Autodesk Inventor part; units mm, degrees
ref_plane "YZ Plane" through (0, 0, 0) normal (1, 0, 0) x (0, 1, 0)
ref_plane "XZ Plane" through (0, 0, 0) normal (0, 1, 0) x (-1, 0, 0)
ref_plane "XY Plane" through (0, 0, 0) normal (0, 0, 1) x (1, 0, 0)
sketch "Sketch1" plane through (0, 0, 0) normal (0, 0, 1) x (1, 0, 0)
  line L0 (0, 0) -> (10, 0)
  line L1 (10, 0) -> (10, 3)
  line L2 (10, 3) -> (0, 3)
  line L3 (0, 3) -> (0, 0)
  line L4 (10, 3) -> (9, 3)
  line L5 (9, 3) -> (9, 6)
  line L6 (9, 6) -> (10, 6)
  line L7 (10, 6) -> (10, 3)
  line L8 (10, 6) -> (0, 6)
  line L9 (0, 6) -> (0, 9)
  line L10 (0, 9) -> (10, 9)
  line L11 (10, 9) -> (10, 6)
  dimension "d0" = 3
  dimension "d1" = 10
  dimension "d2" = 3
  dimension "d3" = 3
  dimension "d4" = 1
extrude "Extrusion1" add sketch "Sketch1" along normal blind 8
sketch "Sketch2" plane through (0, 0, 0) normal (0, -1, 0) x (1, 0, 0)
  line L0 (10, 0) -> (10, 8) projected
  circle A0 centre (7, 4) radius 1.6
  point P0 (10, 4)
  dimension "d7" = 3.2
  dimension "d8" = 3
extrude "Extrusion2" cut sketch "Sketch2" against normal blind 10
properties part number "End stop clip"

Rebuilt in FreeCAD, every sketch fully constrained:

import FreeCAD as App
import Part
import Sketcher

V = App.Vector


def add_polygon(sketch, points):
    """Adds a closed chain of lines whose ends are joined by coincident constraints."""
    first, n = sketch.GeometryCount, len(points)
    for a, b in zip(points, points[1:] + points[:1]):
        sketch.addGeometry(Part.LineSegment(App.Vector(*a, 0), App.Vector(*b, 0)), False)
    for i in range(n):
        sketch.addConstraint(Sketcher.Constraint("Coincident", first + i, 2, first + (i + 1) % n, 1))

doc = App.newDocument("Part")
body = doc.addObject("PartDesign::Body", "Body")

# Sketch on XY plane
sketch1 = doc.addObject("Sketcher::SketchObject", "Sketch")
body.addObject(sketch1)
sketch1.AttachmentSupport = (doc.XY_Plane, [""])
sketch1.MapMode = "FlatFace"
add_polygon(sketch1, [(0, 3), (0, 0), (10, 0), (10, 9), (0, 9), (0, 6), (9, 6), (9, 3)])  # lines 0-7
sketch1.addConstraint(Sketcher.Constraint("Vertical", 0))
sketch1.addConstraint(Sketcher.Constraint("Horizontal", 1))
sketch1.addConstraint(Sketcher.Constraint("Vertical", 2))
sketch1.addConstraint(Sketcher.Constraint("Horizontal", 3))
sketch1.addConstraint(Sketcher.Constraint("Vertical", 4))
sketch1.addConstraint(Sketcher.Constraint("Horizontal", 5))
sketch1.addConstraint(Sketcher.Constraint("Vertical", 6))
sketch1.addConstraint(Sketcher.Constraint("Horizontal", 7))
sketch1.addConstraint(Sketcher.Constraint("Coincident", 0, 2, -1, 1))
sketch1.addConstraint(Sketcher.Constraint("PointOnObject", 3, 2, -2))
sketch1.addConstraint(Sketcher.Constraint("Equal", 7, 2))
sketch1.addConstraint(Sketcher.Constraint("Equal", 0, 4))
sketch1.addConstraint(Sketcher.Constraint("Equal", 4, 6))
sketch1.addConstraint(Sketcher.Constraint("DistanceX", 1, 1, 1, 2, 10.0))
sketch1.addConstraint(Sketcher.Constraint("DistanceY", 0, 2, 0, 1, 3.0))
pad1 = doc.addObject("PartDesign::Pad", "Pad")
body.addObject(pad1)
pad1.Profile = sketch1
pad1.Length = 8

# Sketch on XZ plane
sketch2 = doc.addObject("Sketcher::SketchObject", "Sketch001")
body.addObject(sketch2)
sketch2.AttachmentSupport = (doc.XZ_Plane, [""])
sketch2.MapMode = "FlatFace"
sketch2.addGeometry(Part.Circle(V(7, 4, 0), V(0, 0, 1), 1.6), False)
sketch2.addConstraint(Sketcher.Constraint("Diameter", 0, 3.2))
sketch2.addConstraint(Sketcher.Constraint("DistanceX", -1, 1, 0, 3, 7.0))
sketch2.addConstraint(Sketcher.Constraint("DistanceY", -1, 1, 0, 3, 4.0))
pocket1 = doc.addObject("PartDesign::Pocket", "Pocket")
body.addObject(pocket1)
pocket1.Profile = sketch2
pocket1.Length = 10

doc.recompute()
